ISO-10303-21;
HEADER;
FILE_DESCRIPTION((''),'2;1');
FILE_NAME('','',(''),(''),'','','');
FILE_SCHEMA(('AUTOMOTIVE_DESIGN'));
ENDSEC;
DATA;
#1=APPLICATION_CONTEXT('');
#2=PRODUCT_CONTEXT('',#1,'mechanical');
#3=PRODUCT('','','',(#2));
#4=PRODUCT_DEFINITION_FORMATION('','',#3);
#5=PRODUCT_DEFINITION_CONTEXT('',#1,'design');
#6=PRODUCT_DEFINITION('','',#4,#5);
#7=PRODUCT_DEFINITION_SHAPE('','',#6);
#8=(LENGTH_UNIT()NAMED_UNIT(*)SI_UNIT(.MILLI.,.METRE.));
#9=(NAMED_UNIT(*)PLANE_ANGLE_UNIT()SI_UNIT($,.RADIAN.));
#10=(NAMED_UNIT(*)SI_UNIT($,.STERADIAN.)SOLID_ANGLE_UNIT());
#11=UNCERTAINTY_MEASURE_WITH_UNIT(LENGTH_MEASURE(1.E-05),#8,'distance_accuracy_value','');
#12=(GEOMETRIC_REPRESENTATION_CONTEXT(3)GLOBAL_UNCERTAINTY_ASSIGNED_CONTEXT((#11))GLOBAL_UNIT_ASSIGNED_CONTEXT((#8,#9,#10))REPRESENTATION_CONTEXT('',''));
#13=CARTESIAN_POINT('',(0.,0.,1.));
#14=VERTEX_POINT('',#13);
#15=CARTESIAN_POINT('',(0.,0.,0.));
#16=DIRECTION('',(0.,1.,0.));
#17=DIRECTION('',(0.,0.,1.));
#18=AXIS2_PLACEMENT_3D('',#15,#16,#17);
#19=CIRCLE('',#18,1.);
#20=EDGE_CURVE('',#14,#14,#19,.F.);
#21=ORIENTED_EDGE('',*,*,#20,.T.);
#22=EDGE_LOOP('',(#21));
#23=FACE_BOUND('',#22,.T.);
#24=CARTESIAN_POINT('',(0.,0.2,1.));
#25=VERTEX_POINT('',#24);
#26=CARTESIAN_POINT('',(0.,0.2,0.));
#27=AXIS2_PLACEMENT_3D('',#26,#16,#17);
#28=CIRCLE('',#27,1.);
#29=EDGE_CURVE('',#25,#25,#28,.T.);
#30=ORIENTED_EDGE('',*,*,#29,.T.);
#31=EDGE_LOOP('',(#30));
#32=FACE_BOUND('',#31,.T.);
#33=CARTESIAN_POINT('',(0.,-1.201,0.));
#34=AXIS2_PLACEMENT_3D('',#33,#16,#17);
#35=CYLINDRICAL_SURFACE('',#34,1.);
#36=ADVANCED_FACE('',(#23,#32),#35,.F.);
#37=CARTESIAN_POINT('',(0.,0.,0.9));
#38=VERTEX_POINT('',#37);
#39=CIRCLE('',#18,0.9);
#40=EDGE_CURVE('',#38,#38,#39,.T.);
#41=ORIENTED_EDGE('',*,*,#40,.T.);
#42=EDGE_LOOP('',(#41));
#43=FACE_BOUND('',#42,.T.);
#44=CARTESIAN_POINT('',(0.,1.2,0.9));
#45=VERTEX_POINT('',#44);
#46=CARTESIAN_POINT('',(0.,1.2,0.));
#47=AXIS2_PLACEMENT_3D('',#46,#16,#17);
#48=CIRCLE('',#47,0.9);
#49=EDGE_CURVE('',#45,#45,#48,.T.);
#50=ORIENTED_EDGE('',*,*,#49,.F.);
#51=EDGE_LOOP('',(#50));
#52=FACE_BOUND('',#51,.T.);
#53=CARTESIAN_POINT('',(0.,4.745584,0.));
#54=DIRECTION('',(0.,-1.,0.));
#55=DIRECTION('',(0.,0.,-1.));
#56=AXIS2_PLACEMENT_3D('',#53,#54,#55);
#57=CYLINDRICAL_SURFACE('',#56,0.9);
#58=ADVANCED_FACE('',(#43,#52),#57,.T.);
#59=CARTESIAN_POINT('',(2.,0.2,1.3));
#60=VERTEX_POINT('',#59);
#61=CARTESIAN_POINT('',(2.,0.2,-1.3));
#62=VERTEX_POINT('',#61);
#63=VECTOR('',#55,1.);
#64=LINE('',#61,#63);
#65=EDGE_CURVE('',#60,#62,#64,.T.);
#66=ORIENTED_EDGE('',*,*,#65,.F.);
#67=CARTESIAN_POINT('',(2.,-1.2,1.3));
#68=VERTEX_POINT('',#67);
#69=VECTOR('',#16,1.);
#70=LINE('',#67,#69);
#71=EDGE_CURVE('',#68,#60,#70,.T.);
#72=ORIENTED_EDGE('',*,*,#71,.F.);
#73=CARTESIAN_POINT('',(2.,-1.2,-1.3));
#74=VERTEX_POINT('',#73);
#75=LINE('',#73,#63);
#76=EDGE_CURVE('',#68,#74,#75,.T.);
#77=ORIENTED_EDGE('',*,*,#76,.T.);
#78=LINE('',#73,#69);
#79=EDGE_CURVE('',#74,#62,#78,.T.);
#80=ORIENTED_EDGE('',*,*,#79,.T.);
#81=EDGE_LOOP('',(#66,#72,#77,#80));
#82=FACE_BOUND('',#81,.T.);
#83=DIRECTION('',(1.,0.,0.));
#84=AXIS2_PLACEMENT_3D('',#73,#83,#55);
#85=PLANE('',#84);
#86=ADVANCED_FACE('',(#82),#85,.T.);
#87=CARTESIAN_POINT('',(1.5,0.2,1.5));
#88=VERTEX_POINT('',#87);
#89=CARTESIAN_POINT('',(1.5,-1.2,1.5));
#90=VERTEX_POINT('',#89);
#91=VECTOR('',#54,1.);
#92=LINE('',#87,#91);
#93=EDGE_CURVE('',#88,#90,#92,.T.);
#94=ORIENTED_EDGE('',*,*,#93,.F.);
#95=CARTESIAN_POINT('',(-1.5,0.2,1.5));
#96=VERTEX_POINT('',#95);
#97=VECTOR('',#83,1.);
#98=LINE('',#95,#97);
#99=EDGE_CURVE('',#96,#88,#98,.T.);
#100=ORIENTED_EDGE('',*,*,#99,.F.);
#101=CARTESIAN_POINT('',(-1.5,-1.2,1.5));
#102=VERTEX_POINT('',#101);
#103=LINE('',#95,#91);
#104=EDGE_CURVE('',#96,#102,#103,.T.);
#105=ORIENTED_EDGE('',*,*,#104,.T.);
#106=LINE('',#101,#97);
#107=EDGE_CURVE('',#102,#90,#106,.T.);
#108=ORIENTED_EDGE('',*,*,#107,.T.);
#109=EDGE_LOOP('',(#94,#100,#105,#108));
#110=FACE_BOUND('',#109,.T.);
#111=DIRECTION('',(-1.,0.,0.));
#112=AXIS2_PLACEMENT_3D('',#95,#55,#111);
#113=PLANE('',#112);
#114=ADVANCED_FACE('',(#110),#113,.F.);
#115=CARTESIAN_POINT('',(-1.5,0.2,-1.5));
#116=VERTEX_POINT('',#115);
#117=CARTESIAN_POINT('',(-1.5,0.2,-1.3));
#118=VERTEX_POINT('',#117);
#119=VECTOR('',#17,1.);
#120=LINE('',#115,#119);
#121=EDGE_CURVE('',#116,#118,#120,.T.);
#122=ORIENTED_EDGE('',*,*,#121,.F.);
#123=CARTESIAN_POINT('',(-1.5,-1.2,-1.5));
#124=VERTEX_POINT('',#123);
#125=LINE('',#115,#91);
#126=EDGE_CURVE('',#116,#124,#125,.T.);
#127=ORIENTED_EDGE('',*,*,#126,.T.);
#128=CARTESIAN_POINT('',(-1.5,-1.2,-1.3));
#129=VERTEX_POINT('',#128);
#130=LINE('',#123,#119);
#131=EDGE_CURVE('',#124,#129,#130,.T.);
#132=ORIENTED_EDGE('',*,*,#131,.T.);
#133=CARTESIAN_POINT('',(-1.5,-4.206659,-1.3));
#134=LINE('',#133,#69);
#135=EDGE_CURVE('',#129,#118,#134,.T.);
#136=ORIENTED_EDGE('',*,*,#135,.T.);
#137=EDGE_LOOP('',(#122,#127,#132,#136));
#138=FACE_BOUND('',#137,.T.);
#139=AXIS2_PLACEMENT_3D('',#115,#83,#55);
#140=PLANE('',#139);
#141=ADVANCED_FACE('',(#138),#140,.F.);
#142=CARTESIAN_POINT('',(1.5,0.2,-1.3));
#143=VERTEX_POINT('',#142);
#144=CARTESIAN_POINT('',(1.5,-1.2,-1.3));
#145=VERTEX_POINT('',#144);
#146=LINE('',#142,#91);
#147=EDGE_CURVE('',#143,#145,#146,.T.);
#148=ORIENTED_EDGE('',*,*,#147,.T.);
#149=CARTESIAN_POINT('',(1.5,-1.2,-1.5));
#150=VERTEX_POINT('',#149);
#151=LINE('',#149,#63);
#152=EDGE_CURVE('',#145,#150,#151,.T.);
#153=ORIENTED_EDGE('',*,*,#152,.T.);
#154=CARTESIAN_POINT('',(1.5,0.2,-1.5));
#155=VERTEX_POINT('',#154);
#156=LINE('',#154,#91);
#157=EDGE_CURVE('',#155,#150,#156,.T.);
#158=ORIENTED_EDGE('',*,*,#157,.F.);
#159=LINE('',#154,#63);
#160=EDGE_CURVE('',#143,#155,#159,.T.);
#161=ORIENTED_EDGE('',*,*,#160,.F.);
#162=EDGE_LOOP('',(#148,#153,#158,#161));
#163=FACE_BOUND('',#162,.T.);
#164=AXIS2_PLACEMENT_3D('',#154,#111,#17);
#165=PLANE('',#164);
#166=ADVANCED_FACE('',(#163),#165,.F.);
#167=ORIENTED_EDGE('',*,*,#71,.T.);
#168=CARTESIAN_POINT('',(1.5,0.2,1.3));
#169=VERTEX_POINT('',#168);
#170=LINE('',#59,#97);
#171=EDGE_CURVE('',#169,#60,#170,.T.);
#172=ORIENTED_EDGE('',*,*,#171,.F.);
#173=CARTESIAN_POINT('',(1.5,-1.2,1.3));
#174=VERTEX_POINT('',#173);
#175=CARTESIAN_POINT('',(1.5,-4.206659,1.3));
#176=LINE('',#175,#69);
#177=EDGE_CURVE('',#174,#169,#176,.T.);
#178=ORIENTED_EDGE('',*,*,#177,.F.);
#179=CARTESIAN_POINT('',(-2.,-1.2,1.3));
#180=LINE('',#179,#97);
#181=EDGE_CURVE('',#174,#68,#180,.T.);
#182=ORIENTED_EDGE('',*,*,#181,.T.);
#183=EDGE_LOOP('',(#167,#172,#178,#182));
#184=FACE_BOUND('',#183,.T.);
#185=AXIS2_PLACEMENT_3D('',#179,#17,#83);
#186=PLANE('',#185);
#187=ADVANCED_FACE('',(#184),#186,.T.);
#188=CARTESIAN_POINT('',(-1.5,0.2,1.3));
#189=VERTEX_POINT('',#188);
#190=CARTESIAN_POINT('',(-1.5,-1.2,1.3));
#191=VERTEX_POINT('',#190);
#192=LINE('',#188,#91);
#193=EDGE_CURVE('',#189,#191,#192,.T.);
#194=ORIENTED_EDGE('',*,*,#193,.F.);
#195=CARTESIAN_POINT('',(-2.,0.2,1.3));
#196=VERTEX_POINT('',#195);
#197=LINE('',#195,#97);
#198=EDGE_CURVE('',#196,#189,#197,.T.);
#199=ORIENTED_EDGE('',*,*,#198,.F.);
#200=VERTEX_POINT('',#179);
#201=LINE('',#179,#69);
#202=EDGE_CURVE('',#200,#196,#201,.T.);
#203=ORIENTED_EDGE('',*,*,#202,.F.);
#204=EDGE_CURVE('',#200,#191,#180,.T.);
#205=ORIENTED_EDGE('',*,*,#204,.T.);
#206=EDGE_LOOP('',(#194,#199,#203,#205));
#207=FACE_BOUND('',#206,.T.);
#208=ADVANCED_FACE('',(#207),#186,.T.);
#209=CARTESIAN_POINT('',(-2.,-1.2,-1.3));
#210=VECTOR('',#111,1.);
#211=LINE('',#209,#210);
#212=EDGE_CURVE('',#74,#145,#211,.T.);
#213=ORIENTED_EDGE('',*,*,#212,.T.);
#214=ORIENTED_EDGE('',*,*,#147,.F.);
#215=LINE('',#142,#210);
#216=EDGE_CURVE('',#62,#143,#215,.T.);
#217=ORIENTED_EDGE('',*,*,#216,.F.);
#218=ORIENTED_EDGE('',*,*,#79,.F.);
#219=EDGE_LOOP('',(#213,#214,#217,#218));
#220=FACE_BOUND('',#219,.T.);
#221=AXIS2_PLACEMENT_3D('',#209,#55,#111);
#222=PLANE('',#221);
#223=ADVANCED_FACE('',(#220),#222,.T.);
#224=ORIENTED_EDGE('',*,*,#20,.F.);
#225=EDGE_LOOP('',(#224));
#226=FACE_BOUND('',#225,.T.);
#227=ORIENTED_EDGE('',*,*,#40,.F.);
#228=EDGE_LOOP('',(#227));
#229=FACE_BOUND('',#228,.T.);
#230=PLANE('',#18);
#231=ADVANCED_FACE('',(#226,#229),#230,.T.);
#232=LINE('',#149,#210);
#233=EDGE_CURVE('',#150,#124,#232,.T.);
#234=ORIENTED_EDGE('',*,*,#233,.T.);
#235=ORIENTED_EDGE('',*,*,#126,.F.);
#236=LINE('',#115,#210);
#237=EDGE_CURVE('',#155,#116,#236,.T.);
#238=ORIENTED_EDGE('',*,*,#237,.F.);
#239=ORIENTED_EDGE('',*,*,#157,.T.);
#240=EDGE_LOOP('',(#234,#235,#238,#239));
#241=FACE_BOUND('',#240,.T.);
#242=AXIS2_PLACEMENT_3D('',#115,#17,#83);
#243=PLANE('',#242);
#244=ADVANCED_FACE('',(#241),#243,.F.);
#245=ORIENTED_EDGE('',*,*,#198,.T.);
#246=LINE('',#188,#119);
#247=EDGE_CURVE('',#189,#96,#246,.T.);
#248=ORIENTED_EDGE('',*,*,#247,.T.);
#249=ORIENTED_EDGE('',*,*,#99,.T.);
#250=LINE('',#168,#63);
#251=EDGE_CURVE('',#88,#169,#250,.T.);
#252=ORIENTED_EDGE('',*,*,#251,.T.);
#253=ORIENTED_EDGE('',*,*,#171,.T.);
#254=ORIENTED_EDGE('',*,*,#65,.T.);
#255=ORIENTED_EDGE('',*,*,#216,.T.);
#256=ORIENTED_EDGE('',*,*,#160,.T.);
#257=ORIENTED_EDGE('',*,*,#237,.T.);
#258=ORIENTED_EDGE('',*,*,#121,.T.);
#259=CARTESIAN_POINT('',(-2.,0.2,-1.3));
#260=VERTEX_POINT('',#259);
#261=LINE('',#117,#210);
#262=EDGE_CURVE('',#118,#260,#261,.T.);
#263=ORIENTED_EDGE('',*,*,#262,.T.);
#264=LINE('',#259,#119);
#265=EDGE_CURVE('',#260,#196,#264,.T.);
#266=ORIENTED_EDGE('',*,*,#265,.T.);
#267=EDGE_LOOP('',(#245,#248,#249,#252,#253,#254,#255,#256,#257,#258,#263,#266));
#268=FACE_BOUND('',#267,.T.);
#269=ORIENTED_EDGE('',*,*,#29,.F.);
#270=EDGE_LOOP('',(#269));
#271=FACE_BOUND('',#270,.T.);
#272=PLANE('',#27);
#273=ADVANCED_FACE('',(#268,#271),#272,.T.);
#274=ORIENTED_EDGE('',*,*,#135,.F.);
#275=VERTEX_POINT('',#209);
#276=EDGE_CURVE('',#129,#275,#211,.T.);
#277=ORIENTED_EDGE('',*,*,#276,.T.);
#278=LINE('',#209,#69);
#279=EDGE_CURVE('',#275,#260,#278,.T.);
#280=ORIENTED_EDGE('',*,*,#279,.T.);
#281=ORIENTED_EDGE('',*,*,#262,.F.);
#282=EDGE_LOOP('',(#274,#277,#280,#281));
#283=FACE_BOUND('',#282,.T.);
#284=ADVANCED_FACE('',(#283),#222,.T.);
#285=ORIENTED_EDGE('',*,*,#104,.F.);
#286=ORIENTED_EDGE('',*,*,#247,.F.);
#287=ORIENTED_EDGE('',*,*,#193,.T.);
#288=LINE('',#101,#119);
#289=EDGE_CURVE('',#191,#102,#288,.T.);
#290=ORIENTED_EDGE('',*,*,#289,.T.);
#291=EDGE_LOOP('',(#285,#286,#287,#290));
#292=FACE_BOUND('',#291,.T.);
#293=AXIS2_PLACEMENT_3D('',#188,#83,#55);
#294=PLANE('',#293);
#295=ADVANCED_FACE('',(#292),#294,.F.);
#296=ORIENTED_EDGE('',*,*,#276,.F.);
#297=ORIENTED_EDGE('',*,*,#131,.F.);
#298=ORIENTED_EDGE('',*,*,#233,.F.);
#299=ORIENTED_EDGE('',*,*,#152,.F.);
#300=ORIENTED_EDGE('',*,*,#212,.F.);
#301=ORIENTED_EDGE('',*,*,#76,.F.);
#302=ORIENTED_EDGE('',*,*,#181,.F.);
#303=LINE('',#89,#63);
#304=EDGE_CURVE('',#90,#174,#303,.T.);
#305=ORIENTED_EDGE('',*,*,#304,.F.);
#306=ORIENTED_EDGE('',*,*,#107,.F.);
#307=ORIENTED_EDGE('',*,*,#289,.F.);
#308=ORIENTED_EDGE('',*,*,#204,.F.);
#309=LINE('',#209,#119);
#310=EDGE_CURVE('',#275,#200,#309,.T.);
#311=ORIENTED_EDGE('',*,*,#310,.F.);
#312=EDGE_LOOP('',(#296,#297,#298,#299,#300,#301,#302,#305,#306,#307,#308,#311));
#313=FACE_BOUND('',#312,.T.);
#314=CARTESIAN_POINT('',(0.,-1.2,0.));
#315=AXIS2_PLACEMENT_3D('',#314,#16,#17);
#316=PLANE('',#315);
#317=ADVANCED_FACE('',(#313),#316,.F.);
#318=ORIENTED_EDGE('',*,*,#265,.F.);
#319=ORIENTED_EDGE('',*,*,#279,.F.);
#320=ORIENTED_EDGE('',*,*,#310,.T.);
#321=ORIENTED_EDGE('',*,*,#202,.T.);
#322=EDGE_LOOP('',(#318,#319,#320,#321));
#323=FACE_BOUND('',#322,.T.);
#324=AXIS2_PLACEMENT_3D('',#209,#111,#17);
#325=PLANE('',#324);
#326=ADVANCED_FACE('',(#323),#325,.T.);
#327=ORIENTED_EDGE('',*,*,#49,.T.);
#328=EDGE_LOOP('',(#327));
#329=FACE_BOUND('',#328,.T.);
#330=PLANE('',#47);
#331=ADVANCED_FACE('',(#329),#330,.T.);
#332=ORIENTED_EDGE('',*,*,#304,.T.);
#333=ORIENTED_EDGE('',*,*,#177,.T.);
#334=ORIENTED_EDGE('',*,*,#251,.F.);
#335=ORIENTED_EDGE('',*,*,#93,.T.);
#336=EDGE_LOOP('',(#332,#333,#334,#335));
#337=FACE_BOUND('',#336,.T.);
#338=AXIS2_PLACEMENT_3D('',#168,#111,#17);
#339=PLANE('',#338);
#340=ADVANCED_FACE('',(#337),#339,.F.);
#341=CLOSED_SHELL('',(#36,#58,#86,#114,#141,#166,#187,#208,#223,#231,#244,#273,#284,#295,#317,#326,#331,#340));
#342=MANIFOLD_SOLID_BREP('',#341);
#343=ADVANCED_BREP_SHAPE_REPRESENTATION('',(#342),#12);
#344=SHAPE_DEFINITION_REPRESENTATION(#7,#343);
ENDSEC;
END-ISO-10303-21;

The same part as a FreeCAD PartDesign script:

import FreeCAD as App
import Part
import Sketcher

V = App.Vector
Q = App.Units.Quantity


def add_polygon(sketch, points):
    """Adds a closed chain of lines whose ends are joined by coincident constraints."""
    first, n = sketch.GeometryCount, len(points)
    for a, b in zip(points, points[1:] + points[:1]):
        sketch.addGeometry(Part.LineSegment(App.Vector(*a, 0), App.Vector(*b, 0)), False)
    for i in range(n):
        sketch.addConstraint(Sketcher.Constraint("Coincident", first + i, 2, first + (i + 1) % n, 1))

doc = App.newDocument("Part")
body = doc.addObject("PartDesign::Body", "Body")

# Sketch on XZ plane
sketch1 = doc.addObject("Sketcher::SketchObject", "Sketch")
body.addObject(sketch1)
sketch1.AttachmentSupport = (doc.XZ_Plane, [""])
sketch1.MapMode = "FlatFace"
add_polygon(sketch1, [(-2, -1.3), (-2, 1.3), (2, 1.3), (2, -1.3)])  # lines 0-3
sketch1.addConstraint([
    Sketcher.Constraint("Vertical", 0),
    Sketcher.Constraint("Horizontal", 1),
    Sketcher.Constraint("Vertical", 2),
    Sketcher.Constraint("Horizontal", 3),
    Sketcher.Constraint("Symmetric", 0, 2, 2, 2, -1, 1),
    Sketcher.Constraint("DistanceX", 1, 1, 1, 2, Q("4 mm")),
    Sketcher.Constraint("DistanceY", 0, 1, 0, 2, Q("2.6 mm")),
])
pad1 = doc.addObject("PartDesign::Pad", "Pad")
body.addObject(pad1)
pad1.Profile = sketch1
pad1.Length = 1.2
body2 = doc.addObject("PartDesign::Body", "Body001")

# Sketch on XZ plane
sketch2 = doc.addObject("Sketcher::SketchObject", "Sketch001")
body2.addObject(sketch2)
sketch2.AttachmentSupport = (doc.getObject("XZ_Plane001"), [""])
sketch2.MapMode = "FlatFace"
add_polygon(sketch2, [(1.5, -1.5), (-1.5, -1.5), (-1.5, -1.3), (-2, -1.3), (-2, 1.3), (-1.5, 1.3), (-1.5, 1.5), (1.5, 1.5), (1.5, 1.3), (2, 1.3), (2, -1.3), (1.5, -1.3)])  # lines 0-11
sketch2.addConstraint([
    Sketcher.Constraint("Horizontal", 0),
    Sketcher.Constraint("Vertical", 1),
    Sketcher.Constraint("Horizontal", 2),
    Sketcher.Constraint("Vertical", 3),
    Sketcher.Constraint("Horizontal", 4),
    Sketcher.Constraint("Vertical", 5),
    Sketcher.Constraint("Horizontal", 6),
    Sketcher.Constraint("Vertical", 7),
    Sketcher.Constraint("Horizontal", 8),
    Sketcher.Constraint("Vertical", 9),
    Sketcher.Constraint("Horizontal", 10),
    Sketcher.Constraint("Vertical", 11),
    Sketcher.Constraint("Symmetric", 0, 2, 6, 2, -1, 1),
    Sketcher.Constraint("Symmetric", 2, 2, 8, 2, -1, 1),
    Sketcher.Constraint("Symmetric", 4, 2, 10, 2, -1, 1),
    Sketcher.Constraint("Symmetric", 4, 2, 7, 2, -2),
    Sketcher.Constraint("DistanceX", 0, 2, 0, 1, Q("3 mm")),
    Sketcher.Constraint("DistanceX", 2, 2, 2, 1, Q("0.5 mm")),
    Sketcher.Constraint("DistanceY", 1, 1, 1, 2, Q("0.2 mm")),
    Sketcher.Constraint("DistanceY", 3, 1, 3, 2, Q("2.6 mm")),
])
pad2 = doc.addObject("PartDesign::Pad", "Pad001")
body2.addObject(pad2)
pad2.Profile = sketch2
pad2.Length = 0.2
pad2.Reversed = True

# Sketch on XZ plane
sketch3 = doc.addObject("Sketcher::SketchObject", "Sketch002")
body2.addObject(sketch3)
sketch3.AttachmentSupport = (doc.getObject("XZ_Plane001"), [""])
sketch3.MapMode = "FlatFace"
add_polygon(sketch3, [(1.5, 1.3), (1.5, 1.5), (-1.5, 1.5), (-1.5, 1.3)])  # lines 0-3
add_polygon(sketch3, [(1.5, -1.5), (1.5, -1.3), (-1.5, -1.3), (-1.5, -1.5)])  # lines 4-7
sketch3.addConstraint([
    Sketcher.Constraint("Vertical", 0),
    Sketcher.Constraint("Horizontal", 1),
    Sketcher.Constraint("Vertical", 2),
    Sketcher.Constraint("Horizontal", 3),
    Sketcher.Constraint("Vertical", 4),
    Sketcher.Constraint("Horizontal", 5),
    Sketcher.Constraint("Vertical", 6),
    Sketcher.Constraint("Horizontal", 7),
    Sketcher.Constraint("Symmetric", 2, 2, 4, 2, -1, 1),
    Sketcher.Constraint("Symmetric", 0, 2, 6, 2, -1, 1),
    Sketcher.Constraint("Vertical", 3, 2, 4, 2),
    Sketcher.Constraint("DistanceX", 1, 2, 1, 1, Q("3 mm")),
    Sketcher.Constraint("DistanceY", 0, 1, 0, 2, Q("0.2 mm")),
    Sketcher.Constraint("DistanceY", 6, 2, 1, 2, Q("3 mm")),
])
pad3 = doc.addObject("PartDesign::Pad", "Pad002")
body2.addObject(pad3)
pad3.Profile = sketch3
pad3.Length = 1.2

# Sketch on XZ plane
sketch4 = doc.addObject("Sketcher::SketchObject", "Sketch003")
body2.addObject(sketch4)
sketch4.AttachmentSupport = (doc.getObject("XZ_Plane001"), [""])
sketch4.MapMode = "FlatFace"
sketch4.AttachmentOffset = App.Placement(V(0, 0, -0.2), App.Rotation())
sketch4.addGeometry(Part.Circle(V(0, 0, 0), V(0, 0, 1), 1), False)
sketch4.addConstraint([
    Sketcher.Constraint("Coincident", 0, 3, -1, 1),
    Sketcher.Constraint("Diameter", 0, Q("2 mm")),
])
pocket1 = doc.addObject("PartDesign::Pocket", "Pocket")
body2.addObject(pocket1)
pocket1.Profile = sketch4
pocket1.Length = 0.2
pocket1.Reversed = True
doc.recompute()

boolean = doc.addObject("PartDesign::Boolean", "Boolean")
body.addObject(boolean)
boolean.Type = "Fuse"
boolean.addObjects([body2])

# Sketch on XZ plane
sketch5 = doc.addObject("Sketcher::SketchObject", "Sketch004")
body.addObject(sketch5)
sketch5.AttachmentSupport = (doc.XZ_Plane, [""])
sketch5.MapMode = "FlatFace"
sketch5.addGeometry(Part.Circle(V(0, 0, 0), V(0, 0, 1), 0.9), False)
sketch5.addConstraint([
    Sketcher.Constraint("Coincident", 0, 3, -1, 1),
    Sketcher.Constraint("Diameter", 0, Q("1.8 mm")),
])
pad4 = doc.addObject("PartDesign::Pad", "Pad003")
body.addObject(pad4)
pad4.Profile = sketch5
pad4.Length = 1.2
pad4.Reversed = True

doc.recompute()
